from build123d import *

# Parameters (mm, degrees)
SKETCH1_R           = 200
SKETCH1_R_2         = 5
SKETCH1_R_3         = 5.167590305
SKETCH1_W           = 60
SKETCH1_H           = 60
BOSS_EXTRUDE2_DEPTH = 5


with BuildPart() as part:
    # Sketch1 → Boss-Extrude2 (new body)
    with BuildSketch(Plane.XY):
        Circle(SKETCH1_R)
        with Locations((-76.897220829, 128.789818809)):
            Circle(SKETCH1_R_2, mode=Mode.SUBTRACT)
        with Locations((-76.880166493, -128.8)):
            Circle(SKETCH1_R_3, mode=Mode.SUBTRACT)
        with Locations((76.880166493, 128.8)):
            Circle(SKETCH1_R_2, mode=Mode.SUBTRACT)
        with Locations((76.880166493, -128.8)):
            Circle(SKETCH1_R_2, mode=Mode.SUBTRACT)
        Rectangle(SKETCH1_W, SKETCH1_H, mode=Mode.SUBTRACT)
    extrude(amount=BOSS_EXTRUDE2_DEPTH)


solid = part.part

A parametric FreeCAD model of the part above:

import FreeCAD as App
import Part
import Sketcher

V = App.Vector


def add_polygon(sketch, points):
    """Adds a closed chain of lines whose ends are joined by coincident constraints."""
    first, n = sketch.GeometryCount, len(points)
    for a, b in zip(points, points[1:] + points[:1]):
        sketch.addGeometry(Part.LineSegment(App.Vector(*a, 0), App.Vector(*b, 0)), False)
    for i in range(n):
        sketch.addConstraint(Sketcher.Constraint("Coincident", first + i, 2, first + (i + 1) % n, 1))

doc = App.newDocument("Part")
params = doc.addObject("Spreadsheet::Sheet", "Params")
for row, (alias, value) in enumerate([
    ("sketch1_diameter", "400 mm"),
    ("sketch1_diameter2", "10 mm"),
    ("sketch1_width", "60 mm"),
    ("pad1_length", "5 mm"),
], start=1):
    params.set(f"A{row}", alias)
    params.set(f"B{row}", "=" + value)
    params.setAlias(f"B{row}", alias)

body = doc.addObject("PartDesign::Body", "Body")

# Sketch on XY plane
sketch1 = body.newObject("Sketcher::SketchObject", "Sketch")
sketch1.AttachmentSupport = (doc.getObject("XY_Plane"), [""])
sketch1.MapMode = "FlatFace"
sketch1.addGeometry(Part.Circle(V(0, 0, 0), V(0, 0, 1), 200), False)  # 0
sketch1.addGeometry(Part.Circle(V(-77, -129, 0), V(0, 0, 1), 5), False)  # 1
sketch1.addGeometry(Part.Circle(V(77, -129, 0), V(0, 0, 1), 5), False)  # 2
sketch1.addGeometry(Part.Circle(V(-77, 129, 0), V(0, 0, 1), 5), False)  # 3
add_polygon(sketch1, [(30, -30), (-30, -30), (-30, 30), (30, 30)])  # lines 4-7
sketch1.addGeometry(Part.Circle(V(77, 129, 0), V(0, 0, 1), 5), False)  # 8
sketch1.addConstraint(Sketcher.Constraint("Horizontal", 4))
sketch1.addConstraint(Sketcher.Constraint("Vertical", 5))
sketch1.addConstraint(Sketcher.Constraint("Horizontal", 6))
sketch1.addConstraint(Sketcher.Constraint("Vertical", 7))
sketch1.addConstraint(Sketcher.Constraint("Coincident", 0, 3, -1, 1))
sketch1.addConstraint(Sketcher.Constraint("Equal", 2, 3))
sketch1.addConstraint(Sketcher.Constraint("Equal", 3, 8))
sketch1.addConstraint(Sketcher.Constraint("Symmetric", 1, 3, 8, 3, -1, 1))
sketch1.addConstraint(Sketcher.Constraint("Symmetric", 4, 2, 6, 2, -1, 1))
sketch1.addConstraint(Sketcher.Constraint("Symmetric", 1, 3, 2, 3, -2))
sketch1.addConstraint(Sketcher.Constraint("Equal", 6, 5))
sketch1.addConstraint(Sketcher.Constraint("Diameter", 0, 400.0))
sketch1.addConstraint(Sketcher.Constraint("Diameter", 2, 10.0))
sketch1.addConstraint(Sketcher.Constraint("DistanceX", 4, 2, 4, 1, 60.0))
sketch1.addConstraint(Sketcher.Constraint("DistanceY", 1, 3, -1, 1, 128.8))
sketch1.addConstraint(Sketcher.Constraint("Diameter", 1, 10.335181))
sketch1.addConstraint(Sketcher.Constraint("DistanceX", 3, 3, -1, 1, 76.897221))
sketch1.addConstraint(Sketcher.Constraint("DistanceY", -1, 1, 3, 3, 128.789819))
sketch1.addConstraint(Sketcher.Constraint("DistanceX", 1, 3, -1, 1, 76.880166))
sketch1.setExpression("Constraints[15]", "Params.sketch1_diameter")
sketch1.setExpression("Constraints[16]", "Params.sketch1_diameter2")
sketch1.setExpression("Constraints[17]", "Params.sketch1_width")
pad1 = body.newObject("PartDesign::Pad", "Pad")
pad1.Profile = sketch1
pad1.setExpression("Length", "Params.pad1_length")

doc.recompute()
